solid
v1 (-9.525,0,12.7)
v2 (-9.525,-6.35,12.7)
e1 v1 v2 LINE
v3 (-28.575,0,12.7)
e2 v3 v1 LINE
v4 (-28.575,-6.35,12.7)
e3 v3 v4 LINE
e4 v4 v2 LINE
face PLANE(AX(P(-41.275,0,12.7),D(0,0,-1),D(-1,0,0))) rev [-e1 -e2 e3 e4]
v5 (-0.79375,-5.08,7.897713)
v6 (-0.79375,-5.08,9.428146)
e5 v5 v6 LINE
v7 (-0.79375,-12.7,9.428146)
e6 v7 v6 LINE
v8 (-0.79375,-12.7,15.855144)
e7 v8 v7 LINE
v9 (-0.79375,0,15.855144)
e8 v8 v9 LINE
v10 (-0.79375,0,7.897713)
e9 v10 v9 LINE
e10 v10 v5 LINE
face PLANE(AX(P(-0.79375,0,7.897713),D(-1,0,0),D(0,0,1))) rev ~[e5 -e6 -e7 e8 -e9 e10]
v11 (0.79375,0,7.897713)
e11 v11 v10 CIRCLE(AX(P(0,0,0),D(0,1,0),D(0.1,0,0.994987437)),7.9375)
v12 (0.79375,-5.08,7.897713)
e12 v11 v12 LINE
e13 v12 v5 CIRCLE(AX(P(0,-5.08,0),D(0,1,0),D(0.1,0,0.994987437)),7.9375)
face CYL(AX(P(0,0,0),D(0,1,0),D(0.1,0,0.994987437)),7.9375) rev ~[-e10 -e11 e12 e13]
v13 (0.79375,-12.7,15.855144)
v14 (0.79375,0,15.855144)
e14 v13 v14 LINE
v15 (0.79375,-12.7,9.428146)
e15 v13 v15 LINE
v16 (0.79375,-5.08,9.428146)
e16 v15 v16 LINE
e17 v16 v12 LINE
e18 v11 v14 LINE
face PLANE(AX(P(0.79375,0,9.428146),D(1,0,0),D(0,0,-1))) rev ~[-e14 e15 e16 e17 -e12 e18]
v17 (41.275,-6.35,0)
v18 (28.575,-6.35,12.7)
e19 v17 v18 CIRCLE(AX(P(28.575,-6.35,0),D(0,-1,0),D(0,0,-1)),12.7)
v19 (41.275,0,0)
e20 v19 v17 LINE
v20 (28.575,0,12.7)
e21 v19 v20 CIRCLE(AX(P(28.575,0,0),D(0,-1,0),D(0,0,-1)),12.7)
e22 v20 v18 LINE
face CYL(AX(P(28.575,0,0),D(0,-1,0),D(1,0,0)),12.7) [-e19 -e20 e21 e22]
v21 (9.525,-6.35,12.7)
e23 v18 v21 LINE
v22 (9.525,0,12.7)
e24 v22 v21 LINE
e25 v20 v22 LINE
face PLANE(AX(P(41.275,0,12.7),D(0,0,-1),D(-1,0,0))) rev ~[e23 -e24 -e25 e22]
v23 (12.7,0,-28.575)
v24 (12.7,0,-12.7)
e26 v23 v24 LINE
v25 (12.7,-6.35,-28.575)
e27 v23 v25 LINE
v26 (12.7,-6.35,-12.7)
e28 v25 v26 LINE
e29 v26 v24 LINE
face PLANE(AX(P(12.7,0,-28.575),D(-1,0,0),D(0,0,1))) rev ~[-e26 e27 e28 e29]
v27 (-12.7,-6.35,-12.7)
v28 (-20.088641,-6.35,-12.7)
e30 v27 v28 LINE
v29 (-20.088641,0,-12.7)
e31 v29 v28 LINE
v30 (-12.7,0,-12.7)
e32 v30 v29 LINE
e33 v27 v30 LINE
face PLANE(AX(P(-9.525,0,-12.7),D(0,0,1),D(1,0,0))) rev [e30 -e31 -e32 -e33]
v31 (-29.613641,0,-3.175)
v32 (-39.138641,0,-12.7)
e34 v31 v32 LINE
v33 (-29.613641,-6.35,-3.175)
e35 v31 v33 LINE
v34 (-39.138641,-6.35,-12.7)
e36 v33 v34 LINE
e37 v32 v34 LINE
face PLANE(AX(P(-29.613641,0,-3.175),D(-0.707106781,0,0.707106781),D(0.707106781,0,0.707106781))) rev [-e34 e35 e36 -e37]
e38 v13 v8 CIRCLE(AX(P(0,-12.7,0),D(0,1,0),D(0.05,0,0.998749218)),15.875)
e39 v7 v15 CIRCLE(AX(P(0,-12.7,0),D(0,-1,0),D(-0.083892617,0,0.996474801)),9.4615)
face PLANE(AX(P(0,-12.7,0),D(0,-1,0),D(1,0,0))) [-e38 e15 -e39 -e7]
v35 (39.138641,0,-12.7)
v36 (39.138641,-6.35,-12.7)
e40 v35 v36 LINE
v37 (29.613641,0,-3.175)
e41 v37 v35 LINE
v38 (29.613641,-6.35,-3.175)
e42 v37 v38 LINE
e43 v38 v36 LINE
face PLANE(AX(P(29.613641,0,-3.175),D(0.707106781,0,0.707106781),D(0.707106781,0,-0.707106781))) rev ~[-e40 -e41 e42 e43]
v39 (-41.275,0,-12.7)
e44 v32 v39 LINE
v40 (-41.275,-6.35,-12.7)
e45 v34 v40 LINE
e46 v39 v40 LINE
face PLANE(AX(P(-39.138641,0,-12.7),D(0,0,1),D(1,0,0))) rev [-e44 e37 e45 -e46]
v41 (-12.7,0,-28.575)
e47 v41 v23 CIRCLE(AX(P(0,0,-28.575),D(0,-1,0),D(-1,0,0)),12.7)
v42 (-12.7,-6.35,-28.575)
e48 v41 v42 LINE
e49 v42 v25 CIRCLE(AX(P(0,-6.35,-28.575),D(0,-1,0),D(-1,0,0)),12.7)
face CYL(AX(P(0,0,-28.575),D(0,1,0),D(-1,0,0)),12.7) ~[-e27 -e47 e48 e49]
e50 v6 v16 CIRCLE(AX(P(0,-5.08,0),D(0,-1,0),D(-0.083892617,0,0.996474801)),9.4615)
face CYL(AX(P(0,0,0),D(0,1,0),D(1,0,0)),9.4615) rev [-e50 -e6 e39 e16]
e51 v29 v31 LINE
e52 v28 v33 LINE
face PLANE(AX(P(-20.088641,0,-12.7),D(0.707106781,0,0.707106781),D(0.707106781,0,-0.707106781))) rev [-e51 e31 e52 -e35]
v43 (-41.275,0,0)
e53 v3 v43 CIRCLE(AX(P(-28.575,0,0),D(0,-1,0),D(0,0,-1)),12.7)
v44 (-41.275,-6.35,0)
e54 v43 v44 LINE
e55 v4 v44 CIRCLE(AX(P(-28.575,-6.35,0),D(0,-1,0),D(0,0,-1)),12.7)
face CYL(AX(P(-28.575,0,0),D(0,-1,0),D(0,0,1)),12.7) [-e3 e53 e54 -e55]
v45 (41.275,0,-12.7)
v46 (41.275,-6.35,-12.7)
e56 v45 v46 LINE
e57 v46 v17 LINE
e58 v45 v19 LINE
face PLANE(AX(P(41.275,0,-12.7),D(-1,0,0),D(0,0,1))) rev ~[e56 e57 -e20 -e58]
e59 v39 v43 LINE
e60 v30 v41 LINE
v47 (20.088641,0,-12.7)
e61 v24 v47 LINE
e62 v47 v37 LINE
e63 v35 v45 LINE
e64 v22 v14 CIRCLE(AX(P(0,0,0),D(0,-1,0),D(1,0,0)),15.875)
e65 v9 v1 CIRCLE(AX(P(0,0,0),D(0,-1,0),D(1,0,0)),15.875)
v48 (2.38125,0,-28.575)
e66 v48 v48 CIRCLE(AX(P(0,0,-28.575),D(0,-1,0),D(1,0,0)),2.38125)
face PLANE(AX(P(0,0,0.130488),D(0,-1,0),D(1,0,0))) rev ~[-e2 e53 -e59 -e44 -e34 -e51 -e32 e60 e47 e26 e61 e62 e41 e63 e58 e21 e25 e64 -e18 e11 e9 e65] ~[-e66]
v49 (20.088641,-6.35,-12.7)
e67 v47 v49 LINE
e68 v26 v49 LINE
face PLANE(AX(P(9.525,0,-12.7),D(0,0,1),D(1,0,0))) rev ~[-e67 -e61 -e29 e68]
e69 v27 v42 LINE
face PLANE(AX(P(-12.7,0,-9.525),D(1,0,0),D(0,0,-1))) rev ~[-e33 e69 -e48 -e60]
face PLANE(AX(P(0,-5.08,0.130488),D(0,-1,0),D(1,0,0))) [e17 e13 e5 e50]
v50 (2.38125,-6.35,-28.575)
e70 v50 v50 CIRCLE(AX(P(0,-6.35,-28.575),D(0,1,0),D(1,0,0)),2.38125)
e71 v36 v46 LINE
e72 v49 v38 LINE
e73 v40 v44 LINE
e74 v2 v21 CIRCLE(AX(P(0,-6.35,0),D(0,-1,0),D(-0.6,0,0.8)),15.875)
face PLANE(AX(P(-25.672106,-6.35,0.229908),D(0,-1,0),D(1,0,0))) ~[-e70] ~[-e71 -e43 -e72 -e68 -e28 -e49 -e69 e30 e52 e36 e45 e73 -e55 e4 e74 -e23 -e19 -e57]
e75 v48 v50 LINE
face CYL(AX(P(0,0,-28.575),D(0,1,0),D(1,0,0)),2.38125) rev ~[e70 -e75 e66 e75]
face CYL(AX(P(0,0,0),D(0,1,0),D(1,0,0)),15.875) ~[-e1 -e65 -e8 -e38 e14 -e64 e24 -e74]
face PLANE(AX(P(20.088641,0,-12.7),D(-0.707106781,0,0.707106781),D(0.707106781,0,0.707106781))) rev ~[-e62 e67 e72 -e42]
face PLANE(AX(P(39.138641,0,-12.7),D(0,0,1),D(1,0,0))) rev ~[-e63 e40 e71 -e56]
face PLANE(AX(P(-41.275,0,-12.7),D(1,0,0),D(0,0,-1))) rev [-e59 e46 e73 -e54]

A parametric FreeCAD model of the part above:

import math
import FreeCAD as App
import Part
import Sketcher
from FreeCAD import Vector
Q = App.Units.Quantity


def edges_at(feature, points):
    """Names of the edges that pass closest to the given points."""
    edges = feature.Shape.Edges
    near = lambda p: min(range(len(edges)), key=lambda i: edges[i].distToShape(Part.Vertex(*p))[0])
    return sorted({f"Edge{near(p) + 1}" for p in points})


def add_polygon(sketch, points):
    """Adds a closed chain of lines whose ends are joined by coincident constraints."""
    first, n = sketch.GeometryCount, len(points)
    for a, b in zip(points, points[1:] + points[:1]):
        sketch.addGeometry(Part.LineSegment(App.Vector(*a, 0), App.Vector(*b, 0)), False)
    for i in range(n):
        sketch.addConstraint(Sketcher.Constraint("Coincident", first + i, 2, first + (i + 1) % n, 1))

doc = App.newDocument("Part")
body = doc.addObject("PartDesign::Body", "Body")

# Sketch on XZ plane
sketch1 = body.newObject("Sketcher::SketchObject", "Sketch")
sketch1.AttachmentSupport = (doc.getObject("XZ_Plane"), [""])
sketch1.MapMode = "FlatFace"
sketch1.addGeometry(Part.Circle(Vector(0, 0, 0), Vector(0, 0, 1), 15.875), False)
sketch1.addGeometry(Part.Circle(Vector(0, 0, 0), Vector(0, 0, 1), 9.4615), False)
sketch1.addConstraint(Sketcher.Constraint("Coincident", 0, 3, -1, 1))
sketch1.addConstraint(Sketcher.Constraint("Coincident", 1, 3, -1, 1))
sketch1.addConstraint(Sketcher.Constraint("Diameter", 0, Q("1.25 in")))
sketch1.addConstraint(Sketcher.Constraint("Diameter", 1, Q("0.745 in")))
pad1 = body.newObject("PartDesign::Pad", "Pad")
pad1.Profile = sketch1
pad1.Length = Q("0.5 in")

# Sketch on XZ plane
sketch2 = body.newObject("Sketcher::SketchObject", "Sketch001")
sketch2.AttachmentSupport = (doc.getObject("XZ_Plane"), [""])
sketch2.MapMode = "FlatFace"
sketch2.addGeometry(Part.LineSegment(Vector(12.7, -9.525, 0), Vector(-12.7, -9.525, 0)), False)
sketch2.addGeometry(Part.LineSegment(Vector(-12.7, -9.525, 0), Vector(-12.7, -28.575, 0)), False)
sketch2.addGeometry(Part.ArcOfCircle(Part.Circle(Vector(0, -28.575, 0), Vector(0, 0, 1), 12.7), math.radians(180), math.radians(360)), False)
sketch2.addGeometry(Part.LineSegment(Vector(12.7, -28.575, 0), Vector(12.7, -9.525, 0)), False)
sketch2.addGeometry(Part.Circle(Vector(0, -28.575, 0), Vector(0, 0, 1), 2.38125), False)
sketch2.addConstraint(Sketcher.Constraint("Coincident", 0, 2, 1, 1))
sketch2.addConstraint(Sketcher.Constraint("Tangent", 1, 2, 2, 1))
sketch2.addConstraint(Sketcher.Constraint("Tangent", 2, 2, 3, 1))
sketch2.addConstraint(Sketcher.Constraint("Coincident", 3, 2, 0, 1))
sketch2.addConstraint(Sketcher.Constraint("Horizontal", 0))
sketch2.addConstraint(Sketcher.Constraint("Vertical", 1))
sketch2.addConstraint(Sketcher.Constraint("Vertical", 3))
sketch2.addConstraint(Sketcher.Constraint("Coincident", 4, 3, 2, 3))
sketch2.addConstraint(Sketcher.Constraint("PointOnObject", 2, 3, -2))
sketch2.addConstraint(Sketcher.Constraint("Radius", 2, Q("0.5 in")))
sketch2.addConstraint(Sketcher.Constraint("Diameter", 4, Q("0.1875 in")))
sketch2.addConstraint(Sketcher.Constraint("DistanceY", 1, 2, 1, 1, Q("0.75 in")))
sketch2.addConstraint(Sketcher.Constraint("DistanceY", 2, 3, -1, 1, Q("1.125 in")))
pad2 = body.newObject("PartDesign::Pad", "Pad001")
pad2.Profile = sketch2
pad2.Length = Q("0.25 in")

# Sketch on XZ plane
sketch3 = body.newObject("Sketcher::SketchObject", "Sketch002")
sketch3.AttachmentSupport = (doc.getObject("XZ_Plane"), [""])
sketch3.MapMode = "FlatFace"
add_polygon(sketch3, [(41.275, 12.7), (9.525, 12.7), (9.525, -12.7), (20.088641, -12.7), (29.613641, -3.175), (39.138641, -12.7), (41.275, -12.7)])  # lines 0-6
sketch3.addConstraint(Sketcher.Constraint("Horizontal", 0))
sketch3.addConstraint(Sketcher.Constraint("Vertical", 1))
sketch3.addConstraint(Sketcher.Constraint("Horizontal", 2))
sketch3.addConstraint(Sketcher.Constraint("Horizontal", 5))
sketch3.addConstraint(Sketcher.Constraint("Vertical", 6))
sketch3.addConstraint(Sketcher.Constraint("Perpendicular", 3, 4))
sketch3.addConstraint(Sketcher.Constraint("Horizontal", 2, 2, 4, 2))
sketch3.addConstraint(Sketcher.Constraint("Equal", 3, 4))
sketch3.addConstraint(Sketcher.Constraint("DistanceY", 1, 2, 1, 1, Q("1 in")))
sketch3.addConstraint(Sketcher.Constraint("DistanceX", 0, 2, 0, 1, Q("1.25 in")))
sketch3.addConstraint(Sketcher.Constraint("DistanceY", -1, 1, 0, 2, Q("0.5 in")))
sketch3.addConstraint(Sketcher.Constraint("DistanceX", 2, 2, 4, 2, Q("0.75 in")))
sketch3.addConstraint(Sketcher.Constraint("DistanceX", -1, 1, 0, 2, Q("0.375 in")))
sketch3.addConstraint(Sketcher.Constraint("DistanceX", 2, 1, 2, 2, Q("10.563641 mm")))
pad3 = body.newObject("PartDesign::Pad", "Pad002")
pad3.Profile = sketch3
pad3.Length = Q("0.25 in")
body2 = doc.addObject("PartDesign::Body", "Body001")
doc.recompute()

body2.BaseFeature = body
doc.recompute()

mirroring = doc.addObject("Part::Mirroring", "Mirroring")
mirroring.Source = body
mirroring.Base = Vector(0, 0, 0)
mirroring.Normal = Vector(1, 0, 0)
body3 = doc.addObject("PartDesign::Body", "Body002")
body3.BaseFeature = mirroring
boolean = body2.newObject("PartDesign::Boolean", "Boolean")
boolean.Type = "Fuse"
boolean.addObjects([body3])
doc.recompute()

fillet = body2.newObject("PartDesign::Fillet", "Fillet")
fillet.Base = (boolean, edges_at(boolean, [(41.275, -3.175, 12.7), (-41.275, -3.175, 12.7)]))
fillet.Radius = Q("0.5 in")

# Sketch on XZ plane
sketch4 = body2.newObject("Sketcher::SketchObject", "Sketch003")
sketch4.AttachmentSupport = (doc.getObject("XZ_Plane001"), [""])
sketch4.MapMode = "FlatFace"
add_polygon(sketch4, [(-0.79375, 18.602077), (-0.79375, 0.580032), (0.79375, 0.580032), (0.79375, 18.602077)])  # lines 0-3
sketch4.addConstraint(Sketcher.Constraint("Vertical", 0))
sketch4.addConstraint(Sketcher.Constraint("Horizontal", 1))
sketch4.addConstraint(Sketcher.Constraint("Vertical", 2))
sketch4.addConstraint(Sketcher.Constraint("Horizontal", 3))
sketch4.addConstraint(Sketcher.Constraint("DistanceX", 1, 1, 1, 2, Q("0.0625 in")))
sketch4.addConstraint(Sketcher.Constraint("DistanceX", 0, 2, -1, 1, Q("0.03125 in")))
sketch4.addConstraint(Sketcher.Constraint("DistanceY", 0, 2, 0, 1, Q("18.022045 mm")))
sketch4.addConstraint(Sketcher.Constraint("DistanceY", -1, 1, 0, 2, Q("0.580032 mm")))
pocket1 = body2.newObject("PartDesign::Pocket", "Pocket")
pocket1.Profile = sketch4
pocket1.Type = "ThroughAll"
pocket1.Reversed = True

# Sketch on XZ plane
sketch5 = body2.newObject("Sketcher::SketchObject", "Sketch004")
sketch5.AttachmentSupport = (doc.getObject("XZ_Plane001"), [""])
sketch5.MapMode = "FlatFace"
sketch5.addGeometry(Part.LineSegment(Vector(-0.79375, 7.897713, 0), Vector(-0.79375, 9.428146, 0)), False)
sketch5.addGeometry(Part.ArcOfCircle(Part.Circle(Vector(0, 0, 0), Vector(0, 0, 1), 9.4615), math.radians(94.812349), math.radians(445.187651)), False)
sketch5.addGeometry(Part.LineSegment(Vector(0.79375, 9.428146, 0), Vector(0.79375, 7.897713, 0)), False)
sketch5.addGeometry(Part.ArcOfCircle(Part.Circle(Vector(0, 0, 0), Vector(0, 0, 1), 7.9375), math.radians(95.73917), math.radians(444.26083)), False)
sketch5.addConstraint(Sketcher.Constraint("Coincident", 0, 2, 1, 1))
sketch5.addConstraint(Sketcher.Constraint("Coincident", 1, 2, 2, 1))
sketch5.addConstraint(Sketcher.Constraint("Coincident", 2, 2, 3, 2))
sketch5.addConstraint(Sketcher.Constraint("Coincident", 3, 1, 0, 1))
sketch5.addConstraint(Sketcher.Constraint("Vertical", 0))
sketch5.addConstraint(Sketcher.Constraint("Vertical", 2))
sketch5.addConstraint(Sketcher.Constraint("Coincident", 1, 3, -1, 1))
sketch5.addConstraint(Sketcher.Constraint("Coincident", 3, 3, -1, 1))
sketch5.addConstraint(Sketcher.Constraint("Horizontal", 0, 2, 1, 2))
sketch5.addConstraint(Sketcher.Constraint("Radius", 3, Q("0.3125 in")))
sketch5.addConstraint(Sketcher.Constraint("Radius", 1, Q("0.3725 in")))
sketch5.addConstraint(Sketcher.Constraint("DistanceX", 0, 2, -1, 1, Q("0.03125 in")))
pad4 = body2.newObject("PartDesign::Pad", "Pad003")
pad4.Profile = sketch5
pad4.Length = Q("0.2 in")
mirroring.Visibility = False

doc.recompute()
